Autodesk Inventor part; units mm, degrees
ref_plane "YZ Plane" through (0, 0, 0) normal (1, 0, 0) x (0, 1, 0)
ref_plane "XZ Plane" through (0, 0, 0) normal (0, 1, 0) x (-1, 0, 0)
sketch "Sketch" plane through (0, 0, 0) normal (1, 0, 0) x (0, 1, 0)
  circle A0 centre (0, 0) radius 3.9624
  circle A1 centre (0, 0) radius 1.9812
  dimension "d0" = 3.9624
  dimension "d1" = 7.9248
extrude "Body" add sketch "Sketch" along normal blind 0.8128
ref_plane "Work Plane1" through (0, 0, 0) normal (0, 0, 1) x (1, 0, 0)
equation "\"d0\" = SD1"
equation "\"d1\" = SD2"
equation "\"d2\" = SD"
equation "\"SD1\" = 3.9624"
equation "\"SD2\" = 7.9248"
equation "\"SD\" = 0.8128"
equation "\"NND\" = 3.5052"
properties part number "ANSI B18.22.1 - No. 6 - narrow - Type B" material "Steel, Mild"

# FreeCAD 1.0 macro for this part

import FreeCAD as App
import Part
import Sketcher

V = App.Vector
Q = App.Units.Quantity

doc = App.newDocument("Part")
body = doc.addObject("PartDesign::Body", "Body")

sketch1 = body.newObject("Sketcher::SketchObject", "Sketch")
sketch1.AttachmentSupport = (doc.getObject("YZ_Plane"), [""])
sketch1.MapMode = "FlatFace"
sketch1.addGeometry([
    Part.Circle(V(0, 0, 0), V(0, 0, 1), 4),
    Part.Circle(V(0, 0, 0), V(0, 0, 1), 2),
], False)
sketch1.addConstraint([
    Sketcher.Constraint("Coincident", 0, 3, -1, 1),
    Sketcher.Constraint("Coincident", 1, 3, -1, 1),
    Sketcher.Constraint("Diameter", 0, Q("0.312 in")),
    Sketcher.Constraint("Diameter", 1, Q("0.156 in")),
])
pad1 = body.newObject("PartDesign::Pad", "Pad")
pad1.Profile = sketch1
pad1.Length = Q("0.032 in")

doc.recompute()
